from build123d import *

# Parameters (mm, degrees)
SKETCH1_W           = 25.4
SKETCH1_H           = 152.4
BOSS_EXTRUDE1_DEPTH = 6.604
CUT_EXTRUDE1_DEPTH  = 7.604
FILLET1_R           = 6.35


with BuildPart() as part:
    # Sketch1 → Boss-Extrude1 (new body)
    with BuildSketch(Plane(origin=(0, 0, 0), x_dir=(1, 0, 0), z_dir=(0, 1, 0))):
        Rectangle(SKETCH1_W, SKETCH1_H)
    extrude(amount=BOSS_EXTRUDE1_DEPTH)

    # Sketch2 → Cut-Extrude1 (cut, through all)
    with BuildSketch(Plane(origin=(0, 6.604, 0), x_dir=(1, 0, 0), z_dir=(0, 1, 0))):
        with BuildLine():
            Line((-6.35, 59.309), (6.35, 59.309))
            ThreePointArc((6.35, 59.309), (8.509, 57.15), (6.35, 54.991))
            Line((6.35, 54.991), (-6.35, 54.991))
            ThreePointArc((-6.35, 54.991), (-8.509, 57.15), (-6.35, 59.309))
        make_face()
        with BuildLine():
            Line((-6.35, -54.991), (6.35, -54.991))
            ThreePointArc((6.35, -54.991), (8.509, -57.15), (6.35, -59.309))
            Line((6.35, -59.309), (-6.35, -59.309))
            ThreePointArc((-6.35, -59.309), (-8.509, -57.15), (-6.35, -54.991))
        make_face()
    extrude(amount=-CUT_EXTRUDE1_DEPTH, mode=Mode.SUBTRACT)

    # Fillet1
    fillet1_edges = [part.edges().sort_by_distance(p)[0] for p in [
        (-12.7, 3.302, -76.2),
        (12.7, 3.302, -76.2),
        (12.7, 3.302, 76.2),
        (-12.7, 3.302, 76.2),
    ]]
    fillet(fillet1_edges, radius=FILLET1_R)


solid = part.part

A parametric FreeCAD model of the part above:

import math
import FreeCAD as App
import Part
import Sketcher
from FreeCAD import Vector
Q = App.Units.Quantity


def edges_at(feature, points):
    """Names of the edges that pass closest to the given points."""
    edges = feature.Shape.Edges
    near = lambda p: min(range(len(edges)), key=lambda i: edges[i].distToShape(Part.Vertex(*p))[0])
    return sorted({f"Edge{near(p) + 1}" for p in points})

doc = App.newDocument("Part")
body = doc.addObject("PartDesign::Body", "Body")

sketch1 = body.newObject("Sketcher::SketchObject", "Sketch")
sketch1.AttachmentSupport = (doc.getObject("XZ_Plane"), [""])
sketch1.MapMode = "FlatFace"
sketch1.addGeometry(Part.LineSegment(Vector(-12.7, -76.2, 0), Vector(-12.7, 76.2, 0)), False)
sketch1.addGeometry(Part.LineSegment(Vector(-12.7, 76.2, 0), Vector(12.7, 76.2, 0)), False)
sketch1.addGeometry(Part.LineSegment(Vector(12.7, 76.2, 0), Vector(12.7, -76.2, 0)), False)
sketch1.addGeometry(Part.LineSegment(Vector(12.7, -76.2, 0), Vector(-12.7, -76.2, 0)), False)
sketch1.addConstraint(Sketcher.Constraint("Coincident", 0, 2, 1, 1))
sketch1.addConstraint(Sketcher.Constraint("Coincident", 1, 2, 2, 1))
sketch1.addConstraint(Sketcher.Constraint("Coincident", 2, 2, 3, 1))
sketch1.addConstraint(Sketcher.Constraint("Coincident", 3, 2, 0, 1))
sketch1.addConstraint(Sketcher.Constraint("Vertical", 0))
sketch1.addConstraint(Sketcher.Constraint("Horizontal", 1))
sketch1.addConstraint(Sketcher.Constraint("Vertical", 2))
sketch1.addConstraint(Sketcher.Constraint("Horizontal", 3))
sketch1.addConstraint(Sketcher.Constraint("Symmetric", 0, 2, 2, 2, -1, 1))
sketch1.addConstraint(Sketcher.Constraint("DistanceX", 1, 1, 1, 2, Q("1 in")))
sketch1.addConstraint(Sketcher.Constraint("DistanceY", 0, 1, 0, 2, Q("6 in")))
pad1 = body.newObject("PartDesign::Pad", "Pad")
pad1.Profile = sketch1
pad1.Length = Q("0.26 in")
pad1.Reversed = True

sketch2 = body.newObject("Sketcher::SketchObject", "Sketch001")
sketch2.AttachmentSupport = (doc.getObject("XZ_Plane"), [""])
sketch2.MapMode = "FlatFace"
sketch2.AttachmentOffset = App.Placement(Vector(0, 0, -0.26 * 25.4), App.Rotation())
sketch2.addGeometry(Part.LineSegment(Vector(6.35, -59.309, 0), Vector(-6.35, -59.309, 0)), False)
sketch2.addGeometry(Part.ArcOfCircle(Part.Circle(Vector(-6.35, -57.15, 0), Vector(0, 0, 1), 2.159), math.radians(90), math.radians(270)), False)
sketch2.addGeometry(Part.LineSegment(Vector(-6.35, -54.991, 0), Vector(6.35, -54.991, 0)), False)
sketch2.addGeometry(Part.ArcOfCircle(Part.Circle(Vector(6.35, -57.15, 0), Vector(0, 0, 1), 2.159), math.radians(-90), math.radians(90)), False)
sketch2.addGeometry(Part.LineSegment(Vector(6.35, 54.991, 0), Vector(-6.35, 54.991, 0)), False)
sketch2.addGeometry(Part.ArcOfCircle(Part.Circle(Vector(-6.35, 57.15, 0), Vector(0, 0, 1), 2.159), math.radians(90), math.radians(270)), False)
sketch2.addGeometry(Part.LineSegment(Vector(-6.35, 59.309, 0), Vector(6.35, 59.309, 0)), False)
sketch2.addGeometry(Part.ArcOfCircle(Part.Circle(Vector(6.35, 57.15, 0), Vector(0, 0, 1), 2.159), math.radians(-90), math.radians(90)), False)
sketch2.addConstraint(Sketcher.Constraint("Tangent", 0, 2, 1, 2))
sketch2.addConstraint(Sketcher.Constraint("Tangent", 1, 1, 2, 1))
sketch2.addConstraint(Sketcher.Constraint("Tangent", 2, 2, 3, 2))
sketch2.addConstraint(Sketcher.Constraint("Tangent", 3, 1, 0, 1))
sketch2.addConstraint(Sketcher.Constraint("Tangent", 4, 2, 5, 2))
sketch2.addConstraint(Sketcher.Constraint("Tangent", 5, 1, 6, 1))
sketch2.addConstraint(Sketcher.Constraint("Tangent", 6, 2, 7, 2))
sketch2.addConstraint(Sketcher.Constraint("Tangent", 7, 1, 4, 1))
sketch2.addConstraint(Sketcher.Constraint("Horizontal", 0))
sketch2.addConstraint(Sketcher.Constraint("Horizontal", 2))
sketch2.addConstraint(Sketcher.Constraint("Horizontal", 4))
sketch2.addConstraint(Sketcher.Constraint("Horizontal", 6))
sketch2.addConstraint(Sketcher.Constraint("Equal", 3, 5))
sketch2.addConstraint(Sketcher.Constraint("Symmetric", 3, 3, 5, 3, -1, 1))
sketch2.addConstraint(Sketcher.Constraint("Vertical", 1, 3, 5, 3))
sketch2.addConstraint(Sketcher.Constraint("Vertical", 3, 3, 7, 3))
sketch2.addConstraint(Sketcher.Constraint("DistanceX", 0, 2, 0, 1, Q("0.5 in")))
sketch2.addConstraint(Sketcher.Constraint("Radius", 1, Q("0.085 in")))
sketch2.addConstraint(Sketcher.Constraint("DistanceY", 1, 3, 5, 3, Q("4.5 in")))
pocket1 = body.newObject("PartDesign::Pocket", "Pocket")
pocket1.Profile = sketch2
pocket1.Type = "ThroughAll"
pocket1.Reversed = True
doc.recompute()

fillet = body.newObject("PartDesign::Fillet", "Fillet")
fillet.Base = (pocket1, edges_at(pocket1, [
    (-12.7, 3.302, -76.2),
    (12.7, 3.302, -76.2),
    (12.7, 3.302, 76.2),
    (-12.7, 3.302, 76.2),
]))
fillet.Radius = Q("0.25 in")

doc.recompute()
